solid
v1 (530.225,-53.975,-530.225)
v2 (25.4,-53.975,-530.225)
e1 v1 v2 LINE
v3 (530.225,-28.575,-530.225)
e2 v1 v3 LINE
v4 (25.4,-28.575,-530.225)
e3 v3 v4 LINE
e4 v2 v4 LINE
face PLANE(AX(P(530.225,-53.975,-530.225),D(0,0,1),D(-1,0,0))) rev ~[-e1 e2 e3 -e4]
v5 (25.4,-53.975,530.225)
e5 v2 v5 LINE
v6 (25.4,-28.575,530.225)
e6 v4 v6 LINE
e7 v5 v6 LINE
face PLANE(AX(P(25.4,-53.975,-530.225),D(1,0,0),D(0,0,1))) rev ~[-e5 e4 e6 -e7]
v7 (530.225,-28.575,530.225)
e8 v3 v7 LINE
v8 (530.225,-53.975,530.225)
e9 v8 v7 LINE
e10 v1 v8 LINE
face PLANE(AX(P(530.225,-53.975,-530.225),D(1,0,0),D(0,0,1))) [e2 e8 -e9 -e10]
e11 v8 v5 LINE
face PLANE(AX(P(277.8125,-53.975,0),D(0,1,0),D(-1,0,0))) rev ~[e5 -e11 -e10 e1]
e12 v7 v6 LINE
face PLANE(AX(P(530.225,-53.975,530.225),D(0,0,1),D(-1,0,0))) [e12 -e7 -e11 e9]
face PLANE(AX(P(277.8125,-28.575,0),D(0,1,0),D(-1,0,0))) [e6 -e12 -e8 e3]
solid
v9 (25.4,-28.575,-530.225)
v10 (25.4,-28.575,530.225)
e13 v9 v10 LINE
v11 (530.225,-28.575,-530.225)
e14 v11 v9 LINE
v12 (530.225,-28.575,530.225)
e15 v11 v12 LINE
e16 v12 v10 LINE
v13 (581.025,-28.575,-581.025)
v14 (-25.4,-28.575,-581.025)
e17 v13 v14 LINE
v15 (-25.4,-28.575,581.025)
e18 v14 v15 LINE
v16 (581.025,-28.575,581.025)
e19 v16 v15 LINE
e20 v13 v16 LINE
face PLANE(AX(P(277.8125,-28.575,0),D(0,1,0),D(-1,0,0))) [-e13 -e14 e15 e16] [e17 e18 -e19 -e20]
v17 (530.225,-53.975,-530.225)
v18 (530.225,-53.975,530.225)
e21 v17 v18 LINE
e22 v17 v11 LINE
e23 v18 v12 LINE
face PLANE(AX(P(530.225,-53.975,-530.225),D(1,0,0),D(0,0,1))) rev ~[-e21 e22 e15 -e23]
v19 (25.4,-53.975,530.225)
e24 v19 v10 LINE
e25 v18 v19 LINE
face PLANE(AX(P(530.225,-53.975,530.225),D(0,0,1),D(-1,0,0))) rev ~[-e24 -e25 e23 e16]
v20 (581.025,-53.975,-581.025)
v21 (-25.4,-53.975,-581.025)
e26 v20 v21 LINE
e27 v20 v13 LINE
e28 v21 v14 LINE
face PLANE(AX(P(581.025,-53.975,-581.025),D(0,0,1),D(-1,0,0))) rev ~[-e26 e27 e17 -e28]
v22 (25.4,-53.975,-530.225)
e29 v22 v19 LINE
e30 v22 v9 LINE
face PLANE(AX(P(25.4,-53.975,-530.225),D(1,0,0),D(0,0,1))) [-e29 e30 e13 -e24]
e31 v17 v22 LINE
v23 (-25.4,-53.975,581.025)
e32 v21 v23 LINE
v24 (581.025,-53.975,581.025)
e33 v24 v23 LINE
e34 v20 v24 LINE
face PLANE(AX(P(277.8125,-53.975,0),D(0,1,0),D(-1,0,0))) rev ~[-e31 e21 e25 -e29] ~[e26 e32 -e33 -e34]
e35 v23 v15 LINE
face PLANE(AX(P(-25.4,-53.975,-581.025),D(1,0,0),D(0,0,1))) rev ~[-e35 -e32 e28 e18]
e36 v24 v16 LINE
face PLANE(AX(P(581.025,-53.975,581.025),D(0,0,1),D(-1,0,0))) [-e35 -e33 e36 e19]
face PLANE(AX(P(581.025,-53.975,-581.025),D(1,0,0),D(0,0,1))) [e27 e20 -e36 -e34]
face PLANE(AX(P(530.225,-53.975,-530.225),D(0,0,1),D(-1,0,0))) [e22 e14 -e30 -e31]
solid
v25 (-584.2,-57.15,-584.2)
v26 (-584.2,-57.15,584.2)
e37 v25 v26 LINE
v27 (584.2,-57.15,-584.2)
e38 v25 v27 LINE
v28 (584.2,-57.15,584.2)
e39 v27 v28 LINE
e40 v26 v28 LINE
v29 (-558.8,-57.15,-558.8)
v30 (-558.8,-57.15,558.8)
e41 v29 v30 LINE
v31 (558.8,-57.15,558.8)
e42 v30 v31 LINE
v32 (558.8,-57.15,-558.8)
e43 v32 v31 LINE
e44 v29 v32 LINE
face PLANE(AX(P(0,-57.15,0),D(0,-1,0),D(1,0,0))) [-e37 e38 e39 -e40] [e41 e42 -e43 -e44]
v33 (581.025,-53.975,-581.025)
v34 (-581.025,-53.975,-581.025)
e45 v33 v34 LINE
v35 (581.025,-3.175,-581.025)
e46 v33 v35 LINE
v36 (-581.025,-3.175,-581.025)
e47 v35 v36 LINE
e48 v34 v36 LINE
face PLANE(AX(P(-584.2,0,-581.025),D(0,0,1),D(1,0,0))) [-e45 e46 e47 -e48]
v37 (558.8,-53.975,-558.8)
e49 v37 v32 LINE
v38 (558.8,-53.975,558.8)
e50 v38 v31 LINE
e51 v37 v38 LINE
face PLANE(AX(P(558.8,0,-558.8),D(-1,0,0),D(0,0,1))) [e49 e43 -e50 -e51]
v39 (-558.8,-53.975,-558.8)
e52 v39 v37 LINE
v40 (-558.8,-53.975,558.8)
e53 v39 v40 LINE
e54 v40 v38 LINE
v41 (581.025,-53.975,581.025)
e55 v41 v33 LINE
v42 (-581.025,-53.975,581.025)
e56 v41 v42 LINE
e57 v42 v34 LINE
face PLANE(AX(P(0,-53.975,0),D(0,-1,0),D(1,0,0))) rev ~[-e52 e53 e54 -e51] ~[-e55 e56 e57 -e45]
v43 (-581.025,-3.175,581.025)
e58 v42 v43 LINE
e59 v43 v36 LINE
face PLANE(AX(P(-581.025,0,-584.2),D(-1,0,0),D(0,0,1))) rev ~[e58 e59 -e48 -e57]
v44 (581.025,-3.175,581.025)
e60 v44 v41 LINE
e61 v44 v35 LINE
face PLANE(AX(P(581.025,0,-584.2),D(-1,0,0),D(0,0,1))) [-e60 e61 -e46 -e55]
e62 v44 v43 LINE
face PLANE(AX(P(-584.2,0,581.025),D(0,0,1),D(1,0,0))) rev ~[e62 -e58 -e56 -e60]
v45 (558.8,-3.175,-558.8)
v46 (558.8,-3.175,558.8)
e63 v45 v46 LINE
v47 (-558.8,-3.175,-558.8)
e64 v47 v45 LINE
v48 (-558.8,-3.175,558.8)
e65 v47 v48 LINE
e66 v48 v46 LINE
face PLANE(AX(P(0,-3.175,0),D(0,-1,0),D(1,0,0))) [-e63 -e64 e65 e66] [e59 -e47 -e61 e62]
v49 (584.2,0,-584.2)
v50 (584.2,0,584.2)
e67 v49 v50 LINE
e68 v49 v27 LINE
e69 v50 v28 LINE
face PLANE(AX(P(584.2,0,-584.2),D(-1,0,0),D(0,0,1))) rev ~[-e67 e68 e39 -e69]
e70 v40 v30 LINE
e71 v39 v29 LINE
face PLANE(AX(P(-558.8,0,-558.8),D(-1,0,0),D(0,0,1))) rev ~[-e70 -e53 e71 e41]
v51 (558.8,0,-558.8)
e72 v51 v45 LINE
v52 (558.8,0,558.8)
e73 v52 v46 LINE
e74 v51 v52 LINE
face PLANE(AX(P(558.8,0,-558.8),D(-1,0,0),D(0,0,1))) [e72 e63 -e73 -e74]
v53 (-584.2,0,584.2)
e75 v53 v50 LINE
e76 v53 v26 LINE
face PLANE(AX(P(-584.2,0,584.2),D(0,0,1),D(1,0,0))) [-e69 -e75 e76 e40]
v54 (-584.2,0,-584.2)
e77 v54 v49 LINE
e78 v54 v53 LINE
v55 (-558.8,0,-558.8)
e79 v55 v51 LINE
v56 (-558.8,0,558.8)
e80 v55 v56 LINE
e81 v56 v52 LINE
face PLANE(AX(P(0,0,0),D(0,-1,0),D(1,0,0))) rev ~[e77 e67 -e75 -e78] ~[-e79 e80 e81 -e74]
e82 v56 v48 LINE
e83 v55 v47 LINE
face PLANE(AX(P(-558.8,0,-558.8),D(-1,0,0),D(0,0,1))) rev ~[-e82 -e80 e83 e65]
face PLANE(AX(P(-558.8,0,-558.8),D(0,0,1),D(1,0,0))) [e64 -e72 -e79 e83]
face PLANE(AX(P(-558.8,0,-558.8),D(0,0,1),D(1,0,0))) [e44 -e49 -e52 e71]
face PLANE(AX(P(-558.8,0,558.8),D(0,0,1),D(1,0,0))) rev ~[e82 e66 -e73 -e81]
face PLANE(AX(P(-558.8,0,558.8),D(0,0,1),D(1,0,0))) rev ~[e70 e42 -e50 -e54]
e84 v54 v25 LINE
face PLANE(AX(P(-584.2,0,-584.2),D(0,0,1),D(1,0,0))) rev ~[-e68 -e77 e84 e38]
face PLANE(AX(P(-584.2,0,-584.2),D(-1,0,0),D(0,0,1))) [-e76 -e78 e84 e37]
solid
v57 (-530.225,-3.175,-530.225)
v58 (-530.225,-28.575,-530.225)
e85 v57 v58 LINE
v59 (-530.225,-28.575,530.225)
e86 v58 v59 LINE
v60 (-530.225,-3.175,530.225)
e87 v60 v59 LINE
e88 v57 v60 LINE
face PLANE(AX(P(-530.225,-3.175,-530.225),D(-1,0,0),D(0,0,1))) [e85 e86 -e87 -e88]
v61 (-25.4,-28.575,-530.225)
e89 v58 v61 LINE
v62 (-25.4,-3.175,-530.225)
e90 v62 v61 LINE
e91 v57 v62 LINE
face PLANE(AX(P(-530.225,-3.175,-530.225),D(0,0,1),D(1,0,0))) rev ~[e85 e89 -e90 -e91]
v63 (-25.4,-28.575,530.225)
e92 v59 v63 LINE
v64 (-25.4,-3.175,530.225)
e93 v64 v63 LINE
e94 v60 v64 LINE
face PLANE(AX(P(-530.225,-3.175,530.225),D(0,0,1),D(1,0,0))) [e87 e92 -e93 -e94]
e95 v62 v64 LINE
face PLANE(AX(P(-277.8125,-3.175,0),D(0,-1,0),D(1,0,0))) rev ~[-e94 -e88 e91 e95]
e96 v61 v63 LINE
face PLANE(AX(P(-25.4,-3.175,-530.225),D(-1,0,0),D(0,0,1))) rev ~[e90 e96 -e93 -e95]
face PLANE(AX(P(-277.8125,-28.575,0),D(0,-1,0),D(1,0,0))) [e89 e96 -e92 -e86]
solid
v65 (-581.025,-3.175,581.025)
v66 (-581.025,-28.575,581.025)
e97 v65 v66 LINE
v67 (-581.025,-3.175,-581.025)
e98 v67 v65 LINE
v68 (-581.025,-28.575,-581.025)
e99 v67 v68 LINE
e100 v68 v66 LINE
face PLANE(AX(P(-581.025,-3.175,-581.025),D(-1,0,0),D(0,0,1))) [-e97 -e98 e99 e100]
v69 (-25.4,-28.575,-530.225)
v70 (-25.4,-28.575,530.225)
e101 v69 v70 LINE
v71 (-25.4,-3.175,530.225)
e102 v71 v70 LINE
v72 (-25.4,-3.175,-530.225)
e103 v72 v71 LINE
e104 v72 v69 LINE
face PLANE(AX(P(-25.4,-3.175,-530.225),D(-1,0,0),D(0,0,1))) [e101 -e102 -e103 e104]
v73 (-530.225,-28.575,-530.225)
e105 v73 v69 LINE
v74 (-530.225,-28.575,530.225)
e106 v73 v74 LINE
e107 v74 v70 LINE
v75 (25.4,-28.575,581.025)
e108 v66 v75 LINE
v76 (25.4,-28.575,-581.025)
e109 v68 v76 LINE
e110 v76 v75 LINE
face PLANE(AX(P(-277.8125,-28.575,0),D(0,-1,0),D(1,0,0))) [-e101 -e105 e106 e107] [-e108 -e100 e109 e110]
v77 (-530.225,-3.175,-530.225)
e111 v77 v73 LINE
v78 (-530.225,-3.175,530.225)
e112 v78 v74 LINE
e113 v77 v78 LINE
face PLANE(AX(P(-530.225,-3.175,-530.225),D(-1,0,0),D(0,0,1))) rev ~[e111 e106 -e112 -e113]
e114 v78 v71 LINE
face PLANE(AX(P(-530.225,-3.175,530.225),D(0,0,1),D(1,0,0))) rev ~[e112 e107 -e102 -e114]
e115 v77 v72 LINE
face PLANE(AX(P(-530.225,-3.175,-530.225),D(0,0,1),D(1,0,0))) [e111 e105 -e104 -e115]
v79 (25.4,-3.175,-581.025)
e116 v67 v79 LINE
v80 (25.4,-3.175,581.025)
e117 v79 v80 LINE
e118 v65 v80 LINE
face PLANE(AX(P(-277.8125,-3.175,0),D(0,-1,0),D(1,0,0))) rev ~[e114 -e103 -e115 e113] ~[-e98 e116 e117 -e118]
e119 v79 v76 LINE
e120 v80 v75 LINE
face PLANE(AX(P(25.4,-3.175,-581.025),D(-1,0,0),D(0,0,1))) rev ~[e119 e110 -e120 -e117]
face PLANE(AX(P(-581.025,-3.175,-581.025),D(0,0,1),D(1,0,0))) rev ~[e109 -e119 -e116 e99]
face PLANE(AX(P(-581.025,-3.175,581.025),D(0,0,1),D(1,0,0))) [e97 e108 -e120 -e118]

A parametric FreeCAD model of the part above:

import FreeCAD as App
import Part
import Sketcher
from FreeCAD import Vector
Q = App.Units.Quantity


def faces_at(feature, points):
    """Names of the faces that lie closest to the given points."""
    faces = feature.Shape.Faces
    near = lambda p: min(range(len(faces)), key=lambda i: faces[i].distToShape(Part.Vertex(*p))[0])
    return sorted({f"Face{near(p) + 1}" for p in points})

doc = App.newDocument("Part")
body = doc.addObject("PartDesign::Body", "Body")

# Sketch on XZ plane
sketch1 = body.newObject("Sketcher::SketchObject", "Sketch")
sketch1.AttachmentSupport = (doc.getObject("XZ_Plane"), [""])
sketch1.MapMode = "FlatFace"
sketch1.addGeometry(Part.LineSegment(Vector(-584.2, 584.2, 0), Vector(-584.2, -584.2, 0)), False)
sketch1.addGeometry(Part.LineSegment(Vector(-584.2, -584.2, 0), Vector(584.2, -584.2, 0)), False)
sketch1.addGeometry(Part.LineSegment(Vector(584.2, -584.2, 0), Vector(584.2, 584.2, 0)), False)
sketch1.addGeometry(Part.LineSegment(Vector(584.2, 584.2, 0), Vector(-584.2, 584.2, 0)), False)
sketch1.addGeometry(Part.LineSegment(Vector(558.8, -558.8, 0), Vector(-558.8, -558.8, 0)), False)
sketch1.addGeometry(Part.LineSegment(Vector(-558.8, -558.8, 0), Vector(-558.8, 558.8, 0)), False)
sketch1.addGeometry(Part.LineSegment(Vector(-558.8, 558.8, 0), Vector(558.8, 558.8, 0)), False)
sketch1.addGeometry(Part.LineSegment(Vector(558.8, 558.8, 0), Vector(558.8, -558.8, 0)), False)
sketch1.addConstraint(Sketcher.Constraint("Coincident", 0, 2, 1, 1))
sketch1.addConstraint(Sketcher.Constraint("Coincident", 1, 2, 2, 1))
sketch1.addConstraint(Sketcher.Constraint("Coincident", 2, 2, 3, 1))
sketch1.addConstraint(Sketcher.Constraint("Coincident", 3, 2, 0, 1))
sketch1.addConstraint(Sketcher.Constraint("Coincident", 4, 2, 5, 1))
sketch1.addConstraint(Sketcher.Constraint("Coincident", 5, 2, 6, 1))
sketch1.addConstraint(Sketcher.Constraint("Coincident", 6, 2, 7, 1))
sketch1.addConstraint(Sketcher.Constraint("Coincident", 7, 2, 4, 1))
sketch1.addConstraint(Sketcher.Constraint("Vertical", 0))
sketch1.addConstraint(Sketcher.Constraint("Horizontal", 1))
sketch1.addConstraint(Sketcher.Constraint("Vertical", 2))
sketch1.addConstraint(Sketcher.Constraint("Horizontal", 3))
sketch1.addConstraint(Sketcher.Constraint("Horizontal", 4))
sketch1.addConstraint(Sketcher.Constraint("Vertical", 5))
sketch1.addConstraint(Sketcher.Constraint("Horizontal", 6))
sketch1.addConstraint(Sketcher.Constraint("Vertical", 7))
sketch1.addConstraint(Sketcher.Constraint("Symmetric", 0, 2, 2, 2, -1, 1))
sketch1.addConstraint(Sketcher.Constraint("Symmetric", 4, 2, 6, 2, -1, 1))
sketch1.addConstraint(Sketcher.Constraint("Equal", 3, 0))
sketch1.addConstraint(Sketcher.Constraint("Equal", 6, 5))
sketch1.addConstraint(Sketcher.Constraint("DistanceX", 1, 1, 1, 2, Q("46 in")))
sketch1.addConstraint(Sketcher.Constraint("DistanceX", 4, 2, 4, 1, Q("44 in")))
pad1 = body.newObject("PartDesign::Pad", "Pad")
pad1.Profile = sketch1
pad1.Length = Q("2.25 in")
doc.recompute()

thickness = body.newObject("PartDesign::Thickness", "Thickness")
thickness.Base = (pad1, faces_at(pad1, [
    (558.8, -28.575, 0),
    (0, -28.575, 558.8),
    (-558.8, -28.575, 0),
    (0, -28.575, -558.8),
]))
thickness.Value = Q("0.125 in")
thickness.Reversed = True
thickness.Join = "Arc"
body2 = doc.addObject("PartDesign::Body", "Body001")

# Sketch on XZ plane
sketch2 = body2.newObject("Sketcher::SketchObject", "Sketch001")
sketch2.AttachmentSupport = (doc.getObject("XZ_Plane001"), [""])
sketch2.MapMode = "FlatFace"
sketch2.AttachmentOffset = App.Placement(Vector(0, 0, 0.125 * 25.4), App.Rotation())
sketch2.addGeometry(Part.LineSegment(Vector(-581.025, 581.025, 0), Vector(-581.025, -581.025, 0)), False)
sketch2.addGeometry(Part.LineSegment(Vector(-581.025, -581.025, 0), Vector(25.4, -581.025, 0)), False)
sketch2.addGeometry(Part.LineSegment(Vector(25.4, -581.025, 0), Vector(25.4, 581.025, 0)), False)
sketch2.addGeometry(Part.LineSegment(Vector(25.4, 581.025, 0), Vector(-581.025, 581.025, 0)), False)
sketch2.addGeometry(Part.LineSegment(Vector(-25.4, -530.225, 0), Vector(-530.225, -530.225, 0)), False)
sketch2.addGeometry(Part.LineSegment(Vector(-530.225, -530.225, 0), Vector(-530.225, 530.225, 0)), False)
sketch2.addGeometry(Part.LineSegment(Vector(-530.225, 530.225, 0), Vector(-25.4, 530.225, 0)), False)
sketch2.addGeometry(Part.LineSegment(Vector(-25.4, 530.225, 0), Vector(-25.4, -530.225, 0)), False)
sketch2.addConstraint(Sketcher.Constraint("Coincident", 0, 2, 1, 1))
sketch2.addConstraint(Sketcher.Constraint("Coincident", 1, 2, 2, 1))
sketch2.addConstraint(Sketcher.Constraint("Coincident", 2, 2, 3, 1))
sketch2.addConstraint(Sketcher.Constraint("Coincident", 3, 2, 0, 1))
sketch2.addConstraint(Sketcher.Constraint("Coincident", 4, 2, 5, 1))
sketch2.addConstraint(Sketcher.Constraint("Coincident", 5, 2, 6, 1))
sketch2.addConstraint(Sketcher.Constraint("Coincident", 6, 2, 7, 1))
sketch2.addConstraint(Sketcher.Constraint("Coincident", 7, 2, 4, 1))
sketch2.addConstraint(Sketcher.Constraint("Vertical", 0))
sketch2.addConstraint(Sketcher.Constraint("Horizontal", 1))
sketch2.addConstraint(Sketcher.Constraint("Vertical", 2))
sketch2.addConstraint(Sketcher.Constraint("Horizontal", 3))
sketch2.addConstraint(Sketcher.Constraint("Horizontal", 4))
sketch2.addConstraint(Sketcher.Constraint("Vertical", 5))
sketch2.addConstraint(Sketcher.Constraint("Horizontal", 6))
sketch2.addConstraint(Sketcher.Constraint("Vertical", 7))
sketch2.addConstraint(Sketcher.Constraint("DistanceX", -1, 1, 1, 2, Q("1 in")))
sketch2.addConstraint(Sketcher.Constraint("DistanceX", 6, 2, -1, 1, Q("1 in")))
sketch2.addConstraint(Sketcher.Constraint("DistanceX", 0, 2, 4, 2, Q("2 in")))
sketch2.addConstraint(Sketcher.Constraint("DistanceY", 0, 2, 4, 2, Q("2 in")))
sketch2.addConstraint(Sketcher.Constraint("DistanceY", 5, 2, 3, 2, Q("2 in")))
sketch2.addConstraint(Sketcher.Constraint("DistanceY", 0, 2, 0, 1, Q("45.75 in")))
sketch2.addConstraint(Sketcher.Constraint("DistanceX", 1, 1, 1, 2, Q("23.875 in")))
sketch2.addConstraint(Sketcher.Constraint("DistanceY", 0, 2, -1, 1, Q("22.875 in")))
pad2 = body2.newObject("PartDesign::Pad", "Pad001")
pad2.Profile = sketch2
pad2.Length = Q("1 in")
body3 = doc.addObject("PartDesign::Body", "Body002")

# Sketch on XZ plane
sketch3 = body3.newObject("Sketcher::SketchObject", "Sketch002")
sketch3.AttachmentSupport = (doc.getObject("XZ_Plane002"), [""])
sketch3.MapMode = "FlatFace"
sketch3.AttachmentOffset = App.Placement(Vector(0, 0, 2.125 * 25.4), App.Rotation())
sketch3.addGeometry(Part.LineSegment(Vector(581.025, 581.025, 0), Vector(581.025, -581.025, 0)), False)
sketch3.addGeometry(Part.LineSegment(Vector(581.025, -581.025, 0), Vector(-25.4, -581.025, 0)), False)
sketch3.addGeometry(Part.LineSegment(Vector(-25.4, -581.025, 0), Vector(-25.4, 581.025, 0)), False)
sketch3.addGeometry(Part.LineSegment(Vector(-25.4, 581.025, 0), Vector(581.025, 581.025, 0)), False)
sketch3.addGeometry(Part.LineSegment(Vector(25.4, -530.225, 0), Vector(530.225, -530.225, 0)), False)
sketch3.addGeometry(Part.LineSegment(Vector(530.225, -530.225, 0), Vector(530.225, 530.225, 0)), False)
sketch3.addGeometry(Part.LineSegment(Vector(530.225, 530.225, 0), Vector(25.4, 530.225, 0)), False)
sketch3.addGeometry(Part.LineSegment(Vector(25.4, 530.225, 0), Vector(25.4, -530.225, 0)), False)
sketch3.addConstraint(Sketcher.Constraint("Coincident", 0, 2, 1, 1))
sketch3.addConstraint(Sketcher.Constraint("Coincident", 1, 2, 2, 1))
sketch3.addConstraint(Sketcher.Constraint("Coincident", 2, 2, 3, 1))
sketch3.addConstraint(Sketcher.Constraint("Coincident", 3, 2, 0, 1))
sketch3.addConstraint(Sketcher.Constraint("Coincident", 4, 2, 5, 1))
sketch3.addConstraint(Sketcher.Constraint("Coincident", 5, 2, 6, 1))
sketch3.addConstraint(Sketcher.Constraint("Coincident", 6, 2, 7, 1))
sketch3.addConstraint(Sketcher.Constraint("Coincident", 7, 2, 4, 1))
sketch3.addConstraint(Sketcher.Constraint("Vertical", 0))
sketch3.addConstraint(Sketcher.Constraint("Horizontal", 1))
sketch3.addConstraint(Sketcher.Constraint("Vertical", 2))
sketch3.addConstraint(Sketcher.Constraint("Horizontal", 3))
sketch3.addConstraint(Sketcher.Constraint("Horizontal", 4))
sketch3.addConstraint(Sketcher.Constraint("Vertical", 5))
sketch3.addConstraint(Sketcher.Constraint("Horizontal", 6))
sketch3.addConstraint(Sketcher.Constraint("Vertical", 7))
sketch3.addConstraint(Sketcher.Constraint("DistanceX", 1, 2, -1, 1, Q("1 in")))
sketch3.addConstraint(Sketcher.Constraint("DistanceX", -1, 1, 6, 2, Q("1 in")))
sketch3.addConstraint(Sketcher.Constraint("DistanceX", 4, 2, 0, 2, Q("2 in")))
sketch3.addConstraint(Sketcher.Constraint("DistanceY", 0, 2, 4, 2, Q("2 in")))
sketch3.addConstraint(Sketcher.Constraint("DistanceY", 5, 2, 3, 2, Q("2 in")))
sketch3.addConstraint(Sketcher.Constraint("DistanceY", 0, 2, 0, 1, Q("45.75 in")))
sketch3.addConstraint(Sketcher.Constraint("DistanceX", 1, 2, 1, 1, Q("23.875 in")))
sketch3.addConstraint(Sketcher.Constraint("DistanceY", 0, 2, -1, 1, Q("22.875 in")))
pad3 = body3.newObject("PartDesign::Pad", "Pad002")
pad3.Profile = sketch3
pad3.Length = Q("1 in")
pad3.Reversed = True
body4 = doc.addObject("PartDesign::Body", "Body003")

# Sketch on XZ plane
sketch4 = body4.newObject("Sketcher::SketchObject", "Sketch003")
sketch4.AttachmentSupport = (doc.getObject("XZ_Plane003"), [""])
sketch4.MapMode = "FlatFace"
sketch4.AttachmentOffset = App.Placement(Vector(0, 0, 0.125 * 25.4), App.Rotation())
sketch4.addGeometry(Part.LineSegment(Vector(-530.225, 530.225, 0), Vector(-530.225, -530.225, 0)), False)
sketch4.addGeometry(Part.LineSegment(Vector(-530.225, -530.225, 0), Vector(-25.4, -530.225, 0)), False)
sketch4.addGeometry(Part.LineSegment(Vector(-25.4, -530.225, 0), Vector(-25.4, 530.225, 0)), False)
sketch4.addGeometry(Part.LineSegment(Vector(-25.4, 530.225, 0), Vector(-530.225, 530.225, 0)), False)
sketch4.addConstraint(Sketcher.Constraint("Coincident", 0, 2, 1, 1))
sketch4.addConstraint(Sketcher.Constraint("Coincident", 1, 2, 2, 1))
sketch4.addConstraint(Sketcher.Constraint("Coincident", 2, 2, 3, 1))
sketch4.addConstraint(Sketcher.Constraint("Coincident", 3, 2, 0, 1))
sketch4.addConstraint(Sketcher.Constraint("Vertical", 0))
sketch4.addConstraint(Sketcher.Constraint("Horizontal", 1))
sketch4.addConstraint(Sketcher.Constraint("Vertical", 2))
sketch4.addConstraint(Sketcher.Constraint("Horizontal", 3))
sketch4.addConstraint(Sketcher.Constraint("DistanceX", 1, 2, -1, 1, Q("1 in")))
sketch4.addConstraint(Sketcher.Constraint("DistanceY", 0, 2, 0, 1, Q("41.75 in")))
sketch4.addConstraint(Sketcher.Constraint("DistanceX", 1, 1, 1, 2, Q("19.875 in")))
sketch4.addConstraint(Sketcher.Constraint("DistanceY", 0, 2, -1, 1, Q("20.875 in")))
pad4 = body4.newObject("PartDesign::Pad", "Pad003")
pad4.Profile = sketch4
pad4.Length = Q("1 in")
body5 = doc.addObject("PartDesign::Body", "Body004")

# Sketch on XZ plane
sketch5 = body5.newObject("Sketcher::SketchObject", "Sketch004")
sketch5.AttachmentSupport = (doc.getObject("XZ_Plane004"), [""])
sketch5.MapMode = "FlatFace"
sketch5.AttachmentOffset = App.Placement(Vector(0, 0, 2.125 * 25.4), App.Rotation())
sketch5.addGeometry(Part.LineSegment(Vector(530.225, 530.225, 0), Vector(530.225, -530.225, 0)), False)
sketch5.addGeometry(Part.LineSegment(Vector(530.225, -530.225, 0), Vector(25.4, -530.225, 0)), False)
sketch5.addGeometry(Part.LineSegment(Vector(25.4, -530.225, 0), Vector(25.4, 530.225, 0)), False)
sketch5.addGeometry(Part.LineSegment(Vector(25.4, 530.225, 0), Vector(530.225, 530.225, 0)), False)
sketch5.addConstraint(Sketcher.Constraint("Coincident", 0, 2, 1, 1))
sketch5.addConstraint(Sketcher.Constraint("Coincident", 1, 2, 2, 1))
sketch5.addConstraint(Sketcher.Constraint("Coincident", 2, 2, 3, 1))
sketch5.addConstraint(Sketcher.Constraint("Coincident", 3, 2, 0, 1))
sketch5.addConstraint(Sketcher.Constraint("Vertical", 0))
sketch5.addConstraint(Sketcher.Constraint("Horizontal", 1))
sketch5.addConstraint(Sketcher.Constraint("Vertical", 2))
sketch5.addConstraint(Sketcher.Constraint("Horizontal", 3))
sketch5.addConstraint(Sketcher.Constraint("DistanceX", -1, 1, 1, 2, Q("1 in")))
sketch5.addConstraint(Sketcher.Constraint("DistanceY", 0, 2, 0, 1, Q("41.75 in")))
sketch5.addConstraint(Sketcher.Constraint("DistanceX", 1, 2, 1, 1, Q("19.875 in")))
sketch5.addConstraint(Sketcher.Constraint("DistanceY", 0, 2, -1, 1, Q("20.875 in")))
pad5 = body5.newObject("PartDesign::Pad", "Pad004")
pad5.Profile = sketch5
pad5.Length = Q("1 in")
pad5.Reversed = True

doc.recompute()
